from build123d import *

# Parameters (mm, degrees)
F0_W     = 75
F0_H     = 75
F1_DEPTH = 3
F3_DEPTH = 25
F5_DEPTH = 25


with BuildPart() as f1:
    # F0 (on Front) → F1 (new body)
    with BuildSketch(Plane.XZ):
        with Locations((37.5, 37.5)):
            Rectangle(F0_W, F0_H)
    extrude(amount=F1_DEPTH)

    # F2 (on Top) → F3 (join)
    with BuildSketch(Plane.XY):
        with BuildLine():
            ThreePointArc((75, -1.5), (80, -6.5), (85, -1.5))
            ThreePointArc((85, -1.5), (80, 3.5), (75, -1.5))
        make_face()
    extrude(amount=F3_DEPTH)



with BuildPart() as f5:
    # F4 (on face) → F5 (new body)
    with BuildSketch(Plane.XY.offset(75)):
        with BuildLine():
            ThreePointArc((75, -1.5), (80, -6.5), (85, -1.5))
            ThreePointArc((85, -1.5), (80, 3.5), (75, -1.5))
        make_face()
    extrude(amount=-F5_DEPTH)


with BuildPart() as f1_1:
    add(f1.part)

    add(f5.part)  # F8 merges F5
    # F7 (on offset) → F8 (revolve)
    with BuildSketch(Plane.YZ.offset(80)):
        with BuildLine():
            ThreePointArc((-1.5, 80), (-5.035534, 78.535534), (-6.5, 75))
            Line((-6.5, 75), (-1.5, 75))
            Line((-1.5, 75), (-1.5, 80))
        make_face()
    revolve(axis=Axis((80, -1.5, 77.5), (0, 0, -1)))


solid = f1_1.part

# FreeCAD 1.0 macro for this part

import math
import FreeCAD as App
import Part
import Sketcher

doc = App.newDocument("Part")
body = doc.addObject("PartDesign::Body", "Body")
body.AllowCompound = True

sketch1 = body.newObject("Sketcher::SketchObject", "Sketch")
sketch1.AttachmentSupport = (doc.getObject("XZ_Plane"), [""])
sketch1.MapMode = "FlatFace"
sketch1.addGeometry([
    Part.LineSegment(App.Vector(0, 75, 0), App.Vector(0, 0, 0)),
    Part.LineSegment(App.Vector(0, 0, 0), App.Vector(75, 0, 0)),
    Part.LineSegment(App.Vector(75, 0, 0), App.Vector(75, 75, 0)),
    Part.LineSegment(App.Vector(75, 75, 0), App.Vector(0, 75, 0)),
], False)
sketch1.addConstraint([
    Sketcher.Constraint("Coincident", 0, 2, 1, 1),
    Sketcher.Constraint("Coincident", 1, 2, 2, 1),
    Sketcher.Constraint("Coincident", 2, 2, 3, 1),
    Sketcher.Constraint("Coincident", 3, 2, 0, 1),
    Sketcher.Constraint("Vertical", 0),
    Sketcher.Constraint("Horizontal", 1),
    Sketcher.Constraint("Vertical", 2),
    Sketcher.Constraint("Horizontal", 3),
    Sketcher.Constraint("Coincident", 0, 2, -1, 1),
    Sketcher.Constraint("Equal", 3, 0),
    Sketcher.Constraint("DistanceX", 1, 1, 1, 2, 75.0),
])
pad1 = body.newObject("PartDesign::Pad", "Pad")
pad1.Profile = sketch1
pad1.Length = 3

sketch2 = body.newObject("Sketcher::SketchObject", "Sketch001")
sketch2.AttachmentSupport = (doc.getObject("XY_Plane"), [""])
sketch2.MapMode = "FlatFace"
sketch2.addGeometry(Part.Circle(App.Vector(80, -1.5, 0), App.Vector(0, 0, 1), 5), False)
sketch2.addConstraint([
    Sketcher.Constraint("Diameter", 0, 10.0),
    Sketcher.Constraint("DistanceX", -1, 1, 0, 3, 80.0),
    Sketcher.Constraint("DistanceY", 0, 3, -1, 1, 1.5),
])
pad2 = body.newObject("PartDesign::Pad", "Pad001")
pad2.Profile = sketch2
pad2.Length = 25
body2 = doc.addObject("PartDesign::Body", "Body001")

sketch3 = body2.newObject("Sketcher::SketchObject", "Sketch002")
sketch3.AttachmentSupport = (doc.getObject("XY_Plane001"), [""])
sketch3.MapMode = "FlatFace"
sketch3.AttachmentOffset = App.Placement(App.Vector(0, 0, 75), App.Rotation())
sketch3.addGeometry(Part.Circle(App.Vector(80, -1.5, 0), App.Vector(0, 0, 1), 5), False)
sketch3.addConstraint([
    Sketcher.Constraint("Diameter", 0, 10.0),
    Sketcher.Constraint("DistanceX", -1, 1, 0, 3, 80.0),
    Sketcher.Constraint("DistanceY", 0, 3, -1, 1, 1.5),
])
pad3 = body2.newObject("PartDesign::Pad", "Pad002")
pad3.Profile = sketch3
pad3.Length = 25
pad3.Reversed = True
body.AllowCompound = True
doc.recompute()

boolean = body.newObject("PartDesign::Boolean", "Boolean")
boolean.Type = "Fuse"
boolean.addObjects([body2])

sketch4 = body.newObject("Sketcher::SketchObject", "Sketch003")
sketch4.AttachmentSupport = (doc.getObject("YZ_Plane"), [""])
sketch4.MapMode = "FlatFace"
sketch4.AttachmentOffset = App.Placement(App.Vector(0, 0, 80), App.Rotation())
sketch4.addGeometry([
    Part.ArcOfCircle(Part.Circle(App.Vector(-1.5, 75, 0), App.Vector(0, 0, 1), 5), math.radians(89.999996), math.radians(180.000004)),
    Part.LineSegment(App.Vector(-6.5, 75, 0), App.Vector(-1.5, 75, 0)),
    Part.LineSegment(App.Vector(-1.5, 75, 0), App.Vector(-1.5, 80, 0)),
], False)
sketch4.addGeometry(Part.LineSegment(App.Vector(-1.5, 80, 0), App.Vector(-1.5, 75, 0)), True)
sketch4.addConstraint([
    Sketcher.Constraint("Coincident", 0, 2, 1, 1),
    Sketcher.Constraint("Coincident", 1, 2, 2, 1),
    Sketcher.Constraint("Coincident", 2, 2, 0, 1),
    Sketcher.Constraint("Horizontal", 1),
    Sketcher.Constraint("Vertical", 2),
    Sketcher.Constraint("Vertical", 3),
    Sketcher.Constraint("Coincident", 1, 2, 0, 3),
    Sketcher.Constraint("Coincident", 3, 1, 2, 2),
    Sketcher.Constraint("Horizontal", 0, 2, 3, 2),
    Sketcher.Constraint("Radius", 0, 5.0),
    Sketcher.Constraint("DistanceY", -1, 1, 0, 3, 75.0),
    Sketcher.Constraint("DistanceX", 0, 3, -1, 1, 1.5),
])
revolution = body.newObject("PartDesign::Revolution", "Revolution")
revolution.Profile = sketch4
revolution.ReferenceAxis = (sketch4, ["Axis0"])
revolution.Angle = 360

doc.recompute()
